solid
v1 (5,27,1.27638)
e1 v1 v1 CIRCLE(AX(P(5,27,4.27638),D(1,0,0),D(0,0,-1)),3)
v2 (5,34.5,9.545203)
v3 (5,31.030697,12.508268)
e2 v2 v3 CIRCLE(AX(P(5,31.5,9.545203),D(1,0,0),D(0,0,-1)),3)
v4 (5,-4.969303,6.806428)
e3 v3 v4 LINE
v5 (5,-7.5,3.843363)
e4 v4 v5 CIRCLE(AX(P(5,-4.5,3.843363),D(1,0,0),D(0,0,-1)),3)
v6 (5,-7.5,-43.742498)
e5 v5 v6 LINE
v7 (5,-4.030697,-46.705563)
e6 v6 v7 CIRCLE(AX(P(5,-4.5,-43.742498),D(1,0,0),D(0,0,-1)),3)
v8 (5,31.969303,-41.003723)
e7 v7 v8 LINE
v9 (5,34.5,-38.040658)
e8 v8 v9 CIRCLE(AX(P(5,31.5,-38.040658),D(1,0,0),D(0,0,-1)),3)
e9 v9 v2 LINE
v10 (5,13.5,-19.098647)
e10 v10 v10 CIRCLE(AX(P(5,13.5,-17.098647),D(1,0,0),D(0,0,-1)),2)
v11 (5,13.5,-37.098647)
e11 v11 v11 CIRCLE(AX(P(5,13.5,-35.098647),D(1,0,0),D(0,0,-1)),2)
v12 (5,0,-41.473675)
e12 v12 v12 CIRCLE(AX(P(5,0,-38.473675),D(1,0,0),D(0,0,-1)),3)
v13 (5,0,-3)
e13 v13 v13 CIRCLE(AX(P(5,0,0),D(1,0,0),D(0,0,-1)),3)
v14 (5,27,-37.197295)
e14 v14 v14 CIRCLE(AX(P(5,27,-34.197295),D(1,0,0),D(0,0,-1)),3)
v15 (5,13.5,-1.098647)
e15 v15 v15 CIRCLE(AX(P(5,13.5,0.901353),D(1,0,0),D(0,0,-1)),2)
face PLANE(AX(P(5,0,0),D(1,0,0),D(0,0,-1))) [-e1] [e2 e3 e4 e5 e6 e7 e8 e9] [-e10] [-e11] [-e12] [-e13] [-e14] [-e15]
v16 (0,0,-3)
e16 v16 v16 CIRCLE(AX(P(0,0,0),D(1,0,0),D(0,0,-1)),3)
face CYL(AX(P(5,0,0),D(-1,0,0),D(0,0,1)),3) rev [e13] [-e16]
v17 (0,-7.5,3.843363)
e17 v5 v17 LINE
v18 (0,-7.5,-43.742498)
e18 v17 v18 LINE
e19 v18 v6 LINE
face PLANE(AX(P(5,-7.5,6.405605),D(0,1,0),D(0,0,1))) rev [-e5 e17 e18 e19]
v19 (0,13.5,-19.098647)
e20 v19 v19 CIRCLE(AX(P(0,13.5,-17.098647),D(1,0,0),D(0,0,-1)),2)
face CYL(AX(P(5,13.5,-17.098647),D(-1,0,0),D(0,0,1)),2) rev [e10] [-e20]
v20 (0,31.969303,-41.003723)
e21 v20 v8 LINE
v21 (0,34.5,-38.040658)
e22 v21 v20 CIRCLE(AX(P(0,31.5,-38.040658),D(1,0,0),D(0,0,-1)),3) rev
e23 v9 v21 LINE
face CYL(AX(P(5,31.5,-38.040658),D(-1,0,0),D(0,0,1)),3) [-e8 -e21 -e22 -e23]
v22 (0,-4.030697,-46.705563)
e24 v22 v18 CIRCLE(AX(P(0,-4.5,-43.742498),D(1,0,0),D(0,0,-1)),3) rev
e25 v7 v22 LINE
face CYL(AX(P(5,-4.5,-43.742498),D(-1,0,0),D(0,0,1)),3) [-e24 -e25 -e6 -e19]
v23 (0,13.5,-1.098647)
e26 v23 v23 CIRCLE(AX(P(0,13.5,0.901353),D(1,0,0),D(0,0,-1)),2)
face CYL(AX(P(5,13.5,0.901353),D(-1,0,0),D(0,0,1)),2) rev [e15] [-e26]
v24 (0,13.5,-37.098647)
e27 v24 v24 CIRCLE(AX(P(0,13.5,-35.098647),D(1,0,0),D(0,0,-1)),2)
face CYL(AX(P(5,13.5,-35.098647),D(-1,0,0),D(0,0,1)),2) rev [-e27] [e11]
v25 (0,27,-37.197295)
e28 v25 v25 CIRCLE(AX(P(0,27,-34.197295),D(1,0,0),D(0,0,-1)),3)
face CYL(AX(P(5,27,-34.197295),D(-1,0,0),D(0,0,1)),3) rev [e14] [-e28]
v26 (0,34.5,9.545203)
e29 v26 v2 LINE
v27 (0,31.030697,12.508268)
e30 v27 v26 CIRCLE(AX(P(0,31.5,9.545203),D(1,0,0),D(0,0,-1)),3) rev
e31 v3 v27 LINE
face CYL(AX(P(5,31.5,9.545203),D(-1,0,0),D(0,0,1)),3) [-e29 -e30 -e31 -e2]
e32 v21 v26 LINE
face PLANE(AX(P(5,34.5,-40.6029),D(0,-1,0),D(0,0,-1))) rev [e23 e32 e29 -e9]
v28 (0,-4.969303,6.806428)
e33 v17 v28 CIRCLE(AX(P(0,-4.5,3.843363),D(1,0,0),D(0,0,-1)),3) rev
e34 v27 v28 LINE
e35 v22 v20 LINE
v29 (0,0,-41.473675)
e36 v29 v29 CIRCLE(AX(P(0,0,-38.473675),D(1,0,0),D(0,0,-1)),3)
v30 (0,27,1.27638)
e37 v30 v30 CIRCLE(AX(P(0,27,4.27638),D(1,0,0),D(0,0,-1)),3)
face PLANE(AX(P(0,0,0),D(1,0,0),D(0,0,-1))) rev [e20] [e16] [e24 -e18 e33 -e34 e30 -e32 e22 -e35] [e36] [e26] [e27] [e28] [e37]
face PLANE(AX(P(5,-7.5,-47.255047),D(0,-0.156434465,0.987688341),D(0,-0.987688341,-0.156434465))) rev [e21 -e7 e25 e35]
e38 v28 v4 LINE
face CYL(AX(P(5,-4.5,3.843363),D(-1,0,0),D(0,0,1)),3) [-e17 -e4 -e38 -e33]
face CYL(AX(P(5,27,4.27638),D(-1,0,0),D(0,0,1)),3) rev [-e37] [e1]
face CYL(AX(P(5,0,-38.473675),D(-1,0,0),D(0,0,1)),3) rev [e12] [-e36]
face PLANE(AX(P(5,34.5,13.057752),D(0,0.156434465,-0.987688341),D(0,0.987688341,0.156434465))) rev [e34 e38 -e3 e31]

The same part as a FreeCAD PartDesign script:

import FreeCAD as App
import Part
import Sketcher
Q = App.Units.Quantity


def edges_at(feature, points):
    """Names of the edges that pass closest to the given points."""
    edges = feature.Shape.Edges
    near = lambda p: min(range(len(edges)), key=lambda i: edges[i].distToShape(Part.Vertex(*p))[0])
    return sorted({f"Edge{near(p) + 1}" for p in points})


def add_polygon(sketch, points):
    """Adds a closed chain of lines whose ends are joined by coincident constraints."""
    first, n = sketch.GeometryCount, len(points)
    for a, b in zip(points, points[1:] + points[:1]):
        sketch.addGeometry(Part.LineSegment(App.Vector(*a, 0), App.Vector(*b, 0)), False)
    for i in range(n):
        sketch.addConstraint(Sketcher.Constraint("Coincident", first + i, 2, first + (i + 1) % n, 1))

doc = App.newDocument("Part")
body = doc.addObject("PartDesign::Body", "Body")

# Sketch on YZ plane
sketch1 = body.newObject("Sketcher::SketchObject", "Sketch")
sketch1.AttachmentSupport = (doc.getObject("YZ_Plane"), [""])
sketch1.MapMode = "FlatFace"
add_polygon(sketch1, [(-7.5, 6.405605), (-7.5, -47.255047), (34.5, -40.6029), (34.5, 13.057752)])  # lines 0-3
sketch1.addGeometry(Part.Circle(App.Vector(0, 0, 0), App.Vector(0, 0, 1), 3), False)  # 4
sketch1.addGeometry(Part.Circle(App.Vector(0, -38.473675, 0), App.Vector(0, 0, 1), 3), False)  # 5
sketch1.addGeometry(Part.Circle(App.Vector(13.5, 0.901353, 0), App.Vector(0, 0, 1), 2), False)  # 6
sketch1.addGeometry(Part.Circle(App.Vector(27, 4.27638, 0), App.Vector(0, 0, 1), 3), False)  # 7
sketch1.addGeometry(Part.Circle(App.Vector(13.5, -17.098647, 0), App.Vector(0, 0, 1), 2), False)  # 8
sketch1.addGeometry(Part.Circle(App.Vector(13.5, -35.098647, 0), App.Vector(0, 0, 1), 2), False)  # 9
sketch1.addGeometry(Part.Circle(App.Vector(27, -34.197295, 0), App.Vector(0, 0, 1), 3), False)  # 10
sketch1.addConstraint([
    Sketcher.Constraint("Vertical", 0),
    Sketcher.Constraint("Vertical", 2),
    Sketcher.Constraint("Coincident", 4, 3, -1, 1),
    Sketcher.Constraint("Equal", 4, 5),
    Sketcher.Constraint("Equal", 5, 7),
    Sketcher.Constraint("Equal", 6, 8),
    Sketcher.Constraint("Equal", 8, 9),
    Sketcher.Constraint("Equal", 7, 10),
    Sketcher.Constraint("PointOnObject", 5, 3, -2),
    Sketcher.Constraint("Parallel", 1, 3),
    Sketcher.Constraint("Vertical", 6, 3, 8, 3),
    Sketcher.Constraint("Vertical", 8, 3, 9, 3),
    Sketcher.Constraint("Vertical", 7, 3, 10, 3),
    Sketcher.Constraint("Diameter", 4, Q("6 mm")),
    Sketcher.Constraint("Diameter", 6, Q("4 mm")),
    Sketcher.Constraint("Angle", 1, Q("9 deg")),
    Sketcher.Constraint("DistanceX", -1, 1, 7, 3, Q("27 mm")),
    Sketcher.Constraint("DistanceY", 8, 3, 6, 3, Q("18 mm")),
    Sketcher.Constraint("DistanceY", 9, 3, 8, 3, Q("18 mm")),
    Sketcher.Constraint("DistanceX", 0, 2, 9, 3, Q("21 mm")),
    Sketcher.Constraint("DistanceX", 9, 3, 1, 2, Q("21 mm")),
    Sketcher.Constraint("DistanceX", -1, 1, 6, 3, Q("13.5 mm")),
    Sketcher.Constraint("DistanceY", 0, 2, 0, 1, Q("53.660652 mm")),
    Sketcher.Constraint("DistanceY", 1, 2, -1, 1, Q("40.6029 mm")),
    Sketcher.Constraint("DistanceY", 0, 2, 9, 3, Q("12.156399 mm")),
    Sketcher.Constraint("DistanceY", -1, 1, 7, 3, Q("4.27638 mm")),
    Sketcher.Constraint("DistanceY", 5, 3, 10, 3, Q("4.27638 mm")),
    Sketcher.Constraint("DistanceY", 0, 2, 5, 3, Q("8.781372 mm")),
])
pad1 = body.newObject("PartDesign::Pad", "Pad")
pad1.Profile = sketch1
pad1.Length = 5
doc.recompute()

fillet = body.newObject("PartDesign::Fillet", "Fillet")
fillet.Base = (pad1, edges_at(pad1, [
    (2.5, 34.5, 13.058),
    (2.5, 34.5, -40.603),
    (2.5, -7.5, -47.255),
    (2.5, -7.5, 6.406),
]))
fillet.Radius = 3

doc.recompute()
